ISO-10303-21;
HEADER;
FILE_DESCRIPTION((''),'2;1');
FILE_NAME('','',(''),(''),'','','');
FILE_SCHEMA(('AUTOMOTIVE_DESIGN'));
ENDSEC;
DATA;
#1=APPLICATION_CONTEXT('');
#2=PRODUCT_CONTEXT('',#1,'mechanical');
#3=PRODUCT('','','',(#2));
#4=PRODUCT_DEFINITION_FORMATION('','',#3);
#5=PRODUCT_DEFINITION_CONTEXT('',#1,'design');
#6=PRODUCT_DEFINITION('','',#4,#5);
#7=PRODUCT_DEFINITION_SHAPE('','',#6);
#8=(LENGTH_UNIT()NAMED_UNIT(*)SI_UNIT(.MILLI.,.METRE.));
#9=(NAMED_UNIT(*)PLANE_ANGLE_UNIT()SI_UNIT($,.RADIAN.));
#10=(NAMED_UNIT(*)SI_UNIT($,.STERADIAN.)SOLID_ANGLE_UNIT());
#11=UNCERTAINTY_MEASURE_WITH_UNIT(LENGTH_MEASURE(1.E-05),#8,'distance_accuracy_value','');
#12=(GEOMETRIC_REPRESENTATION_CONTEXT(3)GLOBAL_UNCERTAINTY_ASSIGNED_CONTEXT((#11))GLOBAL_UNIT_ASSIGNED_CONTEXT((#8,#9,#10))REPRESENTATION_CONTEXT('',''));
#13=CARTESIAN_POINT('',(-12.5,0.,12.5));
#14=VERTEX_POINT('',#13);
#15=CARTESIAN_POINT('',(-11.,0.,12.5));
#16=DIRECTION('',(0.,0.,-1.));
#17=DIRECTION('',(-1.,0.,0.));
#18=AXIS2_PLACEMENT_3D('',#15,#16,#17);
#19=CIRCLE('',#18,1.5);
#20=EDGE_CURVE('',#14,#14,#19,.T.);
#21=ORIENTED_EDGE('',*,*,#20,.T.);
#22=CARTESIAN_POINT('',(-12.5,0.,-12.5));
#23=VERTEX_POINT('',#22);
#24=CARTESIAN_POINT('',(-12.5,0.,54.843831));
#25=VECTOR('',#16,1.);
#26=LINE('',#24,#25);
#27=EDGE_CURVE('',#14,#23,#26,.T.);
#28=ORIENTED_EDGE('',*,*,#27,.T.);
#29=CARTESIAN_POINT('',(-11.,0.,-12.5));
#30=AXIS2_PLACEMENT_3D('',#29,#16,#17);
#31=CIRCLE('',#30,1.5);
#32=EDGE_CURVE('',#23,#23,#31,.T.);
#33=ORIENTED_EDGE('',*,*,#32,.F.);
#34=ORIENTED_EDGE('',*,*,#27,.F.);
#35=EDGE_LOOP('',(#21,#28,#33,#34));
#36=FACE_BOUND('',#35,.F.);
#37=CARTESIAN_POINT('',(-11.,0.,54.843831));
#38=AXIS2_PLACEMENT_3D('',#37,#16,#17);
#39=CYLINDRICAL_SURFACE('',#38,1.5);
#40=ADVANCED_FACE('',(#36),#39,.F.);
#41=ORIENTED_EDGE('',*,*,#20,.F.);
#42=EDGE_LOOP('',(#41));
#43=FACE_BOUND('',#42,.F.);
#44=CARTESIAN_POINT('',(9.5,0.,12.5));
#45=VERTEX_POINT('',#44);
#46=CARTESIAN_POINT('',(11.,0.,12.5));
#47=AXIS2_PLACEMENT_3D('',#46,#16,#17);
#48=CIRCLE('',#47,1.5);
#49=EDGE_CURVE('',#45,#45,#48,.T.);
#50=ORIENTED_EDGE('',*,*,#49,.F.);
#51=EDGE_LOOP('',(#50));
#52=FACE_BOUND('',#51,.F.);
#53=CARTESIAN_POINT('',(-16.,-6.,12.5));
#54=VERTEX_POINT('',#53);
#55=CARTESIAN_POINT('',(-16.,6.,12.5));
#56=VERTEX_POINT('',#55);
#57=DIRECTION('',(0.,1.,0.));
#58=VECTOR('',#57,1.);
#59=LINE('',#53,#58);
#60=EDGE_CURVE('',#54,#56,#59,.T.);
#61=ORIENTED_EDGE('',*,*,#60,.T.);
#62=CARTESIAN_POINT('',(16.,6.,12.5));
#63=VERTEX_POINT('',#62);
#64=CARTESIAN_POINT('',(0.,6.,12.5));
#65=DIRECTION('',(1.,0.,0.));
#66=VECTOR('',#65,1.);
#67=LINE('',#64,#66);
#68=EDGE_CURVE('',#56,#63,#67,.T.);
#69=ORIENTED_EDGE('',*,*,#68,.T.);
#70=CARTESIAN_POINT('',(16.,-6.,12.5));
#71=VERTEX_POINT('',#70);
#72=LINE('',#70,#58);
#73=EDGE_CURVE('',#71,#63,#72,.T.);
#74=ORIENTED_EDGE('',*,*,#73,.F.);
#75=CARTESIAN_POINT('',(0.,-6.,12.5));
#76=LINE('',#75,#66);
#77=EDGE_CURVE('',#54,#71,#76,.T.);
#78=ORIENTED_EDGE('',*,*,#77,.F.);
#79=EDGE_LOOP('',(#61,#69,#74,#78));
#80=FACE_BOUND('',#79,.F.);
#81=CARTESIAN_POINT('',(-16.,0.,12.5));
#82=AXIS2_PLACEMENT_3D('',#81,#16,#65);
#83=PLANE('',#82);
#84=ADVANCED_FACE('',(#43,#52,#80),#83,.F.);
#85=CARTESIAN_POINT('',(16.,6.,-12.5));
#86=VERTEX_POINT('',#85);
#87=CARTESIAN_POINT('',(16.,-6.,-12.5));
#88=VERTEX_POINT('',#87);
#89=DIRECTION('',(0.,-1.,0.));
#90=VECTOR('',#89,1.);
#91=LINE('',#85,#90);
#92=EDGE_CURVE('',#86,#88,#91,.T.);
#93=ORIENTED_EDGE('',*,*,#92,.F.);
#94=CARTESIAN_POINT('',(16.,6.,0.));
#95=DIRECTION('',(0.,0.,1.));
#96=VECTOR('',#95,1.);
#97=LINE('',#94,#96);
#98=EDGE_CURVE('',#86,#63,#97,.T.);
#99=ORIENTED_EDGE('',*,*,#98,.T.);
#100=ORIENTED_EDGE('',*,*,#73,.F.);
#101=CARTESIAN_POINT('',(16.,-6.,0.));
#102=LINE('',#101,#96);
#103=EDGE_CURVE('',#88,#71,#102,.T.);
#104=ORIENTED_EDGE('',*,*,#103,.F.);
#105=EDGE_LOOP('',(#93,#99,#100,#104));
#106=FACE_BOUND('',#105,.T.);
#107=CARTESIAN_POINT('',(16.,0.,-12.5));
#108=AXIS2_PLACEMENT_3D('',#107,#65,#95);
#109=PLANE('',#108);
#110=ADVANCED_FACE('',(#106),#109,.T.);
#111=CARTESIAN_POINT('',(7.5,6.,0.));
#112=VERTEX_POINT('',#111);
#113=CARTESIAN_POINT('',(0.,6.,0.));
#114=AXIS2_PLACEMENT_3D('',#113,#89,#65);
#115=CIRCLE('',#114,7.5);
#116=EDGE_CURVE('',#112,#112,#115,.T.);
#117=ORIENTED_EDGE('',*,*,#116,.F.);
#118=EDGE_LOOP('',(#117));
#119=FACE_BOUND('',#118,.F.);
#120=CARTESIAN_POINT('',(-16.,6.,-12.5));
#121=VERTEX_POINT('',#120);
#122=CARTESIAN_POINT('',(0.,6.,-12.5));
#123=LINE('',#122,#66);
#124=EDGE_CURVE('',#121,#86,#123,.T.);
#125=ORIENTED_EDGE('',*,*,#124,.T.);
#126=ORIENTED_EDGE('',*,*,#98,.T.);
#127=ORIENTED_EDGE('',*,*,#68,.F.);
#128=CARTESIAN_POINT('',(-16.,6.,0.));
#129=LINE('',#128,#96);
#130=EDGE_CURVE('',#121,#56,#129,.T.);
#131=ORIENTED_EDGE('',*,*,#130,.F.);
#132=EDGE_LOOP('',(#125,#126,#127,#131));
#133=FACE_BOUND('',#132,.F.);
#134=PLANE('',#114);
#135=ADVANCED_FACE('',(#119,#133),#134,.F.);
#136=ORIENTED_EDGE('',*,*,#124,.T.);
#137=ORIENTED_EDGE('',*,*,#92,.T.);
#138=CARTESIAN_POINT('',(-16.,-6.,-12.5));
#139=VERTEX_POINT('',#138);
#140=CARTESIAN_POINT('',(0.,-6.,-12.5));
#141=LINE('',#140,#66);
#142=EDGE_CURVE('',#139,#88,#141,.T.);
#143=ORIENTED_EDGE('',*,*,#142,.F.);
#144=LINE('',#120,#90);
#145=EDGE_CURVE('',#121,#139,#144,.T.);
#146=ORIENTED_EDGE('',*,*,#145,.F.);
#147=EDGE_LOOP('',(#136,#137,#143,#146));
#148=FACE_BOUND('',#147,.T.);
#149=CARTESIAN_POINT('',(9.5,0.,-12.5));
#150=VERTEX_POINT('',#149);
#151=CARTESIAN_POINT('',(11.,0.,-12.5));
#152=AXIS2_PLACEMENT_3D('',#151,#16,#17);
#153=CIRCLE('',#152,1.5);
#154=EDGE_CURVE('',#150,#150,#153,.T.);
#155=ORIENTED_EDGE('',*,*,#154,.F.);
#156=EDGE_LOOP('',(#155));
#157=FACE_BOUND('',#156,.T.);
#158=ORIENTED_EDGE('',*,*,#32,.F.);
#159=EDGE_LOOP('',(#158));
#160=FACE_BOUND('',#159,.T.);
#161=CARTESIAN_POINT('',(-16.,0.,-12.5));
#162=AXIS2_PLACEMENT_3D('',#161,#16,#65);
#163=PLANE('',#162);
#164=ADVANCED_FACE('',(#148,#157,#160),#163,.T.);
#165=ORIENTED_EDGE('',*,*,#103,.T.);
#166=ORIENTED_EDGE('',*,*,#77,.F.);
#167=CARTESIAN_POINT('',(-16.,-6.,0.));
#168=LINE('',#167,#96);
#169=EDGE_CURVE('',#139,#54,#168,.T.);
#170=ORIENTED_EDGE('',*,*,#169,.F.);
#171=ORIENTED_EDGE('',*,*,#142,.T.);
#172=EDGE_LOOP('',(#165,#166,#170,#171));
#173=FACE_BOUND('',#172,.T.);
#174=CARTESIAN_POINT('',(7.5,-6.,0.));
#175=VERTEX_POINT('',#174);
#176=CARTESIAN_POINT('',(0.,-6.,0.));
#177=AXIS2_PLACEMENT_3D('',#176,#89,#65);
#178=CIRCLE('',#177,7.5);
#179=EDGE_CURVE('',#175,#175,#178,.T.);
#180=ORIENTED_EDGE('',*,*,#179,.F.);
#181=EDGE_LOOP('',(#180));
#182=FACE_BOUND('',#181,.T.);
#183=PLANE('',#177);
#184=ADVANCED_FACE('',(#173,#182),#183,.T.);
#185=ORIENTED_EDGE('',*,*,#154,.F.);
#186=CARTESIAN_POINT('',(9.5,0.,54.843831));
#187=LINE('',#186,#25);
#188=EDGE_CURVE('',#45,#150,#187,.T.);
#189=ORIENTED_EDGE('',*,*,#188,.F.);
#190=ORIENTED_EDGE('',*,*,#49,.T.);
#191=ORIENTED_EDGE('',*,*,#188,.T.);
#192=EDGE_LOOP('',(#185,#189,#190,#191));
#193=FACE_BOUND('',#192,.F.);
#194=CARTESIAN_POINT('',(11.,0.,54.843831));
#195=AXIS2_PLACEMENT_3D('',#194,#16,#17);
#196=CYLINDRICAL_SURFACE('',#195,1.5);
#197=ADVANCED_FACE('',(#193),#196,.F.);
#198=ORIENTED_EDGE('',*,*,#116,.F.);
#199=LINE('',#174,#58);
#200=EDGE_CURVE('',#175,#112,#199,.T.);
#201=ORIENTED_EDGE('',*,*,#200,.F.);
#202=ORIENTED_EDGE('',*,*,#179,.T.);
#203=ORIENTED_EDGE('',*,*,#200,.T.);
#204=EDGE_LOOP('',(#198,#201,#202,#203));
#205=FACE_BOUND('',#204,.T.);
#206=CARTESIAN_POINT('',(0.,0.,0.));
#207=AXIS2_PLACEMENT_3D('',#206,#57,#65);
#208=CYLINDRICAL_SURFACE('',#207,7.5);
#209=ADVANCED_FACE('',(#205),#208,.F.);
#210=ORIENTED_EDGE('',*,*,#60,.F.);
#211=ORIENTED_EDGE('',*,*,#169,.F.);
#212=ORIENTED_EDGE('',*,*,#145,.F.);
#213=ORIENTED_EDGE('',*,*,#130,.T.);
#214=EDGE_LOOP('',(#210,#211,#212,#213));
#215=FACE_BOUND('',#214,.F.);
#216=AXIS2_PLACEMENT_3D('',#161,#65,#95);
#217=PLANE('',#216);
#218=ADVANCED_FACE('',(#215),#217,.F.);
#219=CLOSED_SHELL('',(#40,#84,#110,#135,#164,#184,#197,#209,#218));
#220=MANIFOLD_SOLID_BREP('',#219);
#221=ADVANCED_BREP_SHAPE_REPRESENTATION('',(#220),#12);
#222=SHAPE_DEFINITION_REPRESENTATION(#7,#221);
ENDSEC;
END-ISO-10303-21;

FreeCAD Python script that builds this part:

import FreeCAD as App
import Part
import Sketcher
from FreeCAD import Vector
Q = App.Units.Quantity


def add_polygon(sketch, points):
    """Adds a closed chain of lines whose ends are joined by coincident constraints."""
    first, n = sketch.GeometryCount, len(points)
    for a, b in zip(points, points[1:] + points[:1]):
        sketch.addGeometry(Part.LineSegment(App.Vector(*a, 0), App.Vector(*b, 0)), False)
    for i in range(n):
        sketch.addConstraint(Sketcher.Constraint("Coincident", first + i, 2, first + (i + 1) % n, 1))

doc = App.newDocument("Part")
body = doc.addObject("PartDesign::Body", "Body")

# Sketch on XZ plane
sketch1 = body.newObject("Sketcher::SketchObject", "Sketch")
sketch1.AttachmentSupport = (doc.getObject("XZ_Plane"), [""])
sketch1.MapMode = "FlatFace"
add_polygon(sketch1, [(-16, 12), (-16, -12), (16, -12), (16, 12)])  # lines 0-3
sketch1.addGeometry(Part.Circle(Vector(0, 0, 0), Vector(0, 0, 1), 8), False)  # 4
sketch1.addConstraint([
    Sketcher.Constraint("Vertical", 0),
    Sketcher.Constraint("Horizontal", 1),
    Sketcher.Constraint("Vertical", 2),
    Sketcher.Constraint("Horizontal", 3),
    Sketcher.Constraint("Coincident", 4, 3, -1, 1),
    Sketcher.Constraint("Symmetric", 0, 2, 2, 2, -1, 1),
    Sketcher.Constraint("Diameter", 4, Q("15 mm")),
    Sketcher.Constraint("DistanceX", 1, 1, 1, 2, Q("32 mm")),
    Sketcher.Constraint("DistanceY", 0, 2, 0, 1, Q("25 mm")),
])
pad1 = body.newObject("PartDesign::Pad", "Pad")
pad1.Profile = sketch1
pad1.Length = 12
pad1.Midplane = True

# Sketch on XY plane
sketch2 = body.newObject("Sketcher::SketchObject", "Sketch001")
sketch2.AttachmentSupport = (doc.getObject("XY_Plane"), [""])
sketch2.MapMode = "FlatFace"
sketch2.AttachmentOffset = App.Placement(Vector(0, 0, 12.5), App.Rotation())
sketch2.addGeometry([
    Part.Circle(Vector(-11, 0, 0), Vector(0, 0, 1), 1.5),
    Part.Circle(Vector(11, 0, 0), Vector(0, 0, 1), 1.5),
], False)
sketch2.addConstraint([
    Sketcher.Constraint("Equal", 0, 1),
    Sketcher.Constraint("Symmetric", 0, 3, 1, 3, -1, 1),
    Sketcher.Constraint("PointOnObject", 0, 3, -1),
    Sketcher.Constraint("Diameter", 0, Q("3 mm")),
    Sketcher.Constraint("DistanceX", 0, 3, -1, 1, Q("11 mm")),
])
doc.recompute()
hole = body.newObject("PartDesign::Hole", "Hole")
hole.Profile = sketch2
hole.ThreadType = "None"
hole.Diameter = 3
hole.DepthType = "ThroughAll"

doc.recompute()
